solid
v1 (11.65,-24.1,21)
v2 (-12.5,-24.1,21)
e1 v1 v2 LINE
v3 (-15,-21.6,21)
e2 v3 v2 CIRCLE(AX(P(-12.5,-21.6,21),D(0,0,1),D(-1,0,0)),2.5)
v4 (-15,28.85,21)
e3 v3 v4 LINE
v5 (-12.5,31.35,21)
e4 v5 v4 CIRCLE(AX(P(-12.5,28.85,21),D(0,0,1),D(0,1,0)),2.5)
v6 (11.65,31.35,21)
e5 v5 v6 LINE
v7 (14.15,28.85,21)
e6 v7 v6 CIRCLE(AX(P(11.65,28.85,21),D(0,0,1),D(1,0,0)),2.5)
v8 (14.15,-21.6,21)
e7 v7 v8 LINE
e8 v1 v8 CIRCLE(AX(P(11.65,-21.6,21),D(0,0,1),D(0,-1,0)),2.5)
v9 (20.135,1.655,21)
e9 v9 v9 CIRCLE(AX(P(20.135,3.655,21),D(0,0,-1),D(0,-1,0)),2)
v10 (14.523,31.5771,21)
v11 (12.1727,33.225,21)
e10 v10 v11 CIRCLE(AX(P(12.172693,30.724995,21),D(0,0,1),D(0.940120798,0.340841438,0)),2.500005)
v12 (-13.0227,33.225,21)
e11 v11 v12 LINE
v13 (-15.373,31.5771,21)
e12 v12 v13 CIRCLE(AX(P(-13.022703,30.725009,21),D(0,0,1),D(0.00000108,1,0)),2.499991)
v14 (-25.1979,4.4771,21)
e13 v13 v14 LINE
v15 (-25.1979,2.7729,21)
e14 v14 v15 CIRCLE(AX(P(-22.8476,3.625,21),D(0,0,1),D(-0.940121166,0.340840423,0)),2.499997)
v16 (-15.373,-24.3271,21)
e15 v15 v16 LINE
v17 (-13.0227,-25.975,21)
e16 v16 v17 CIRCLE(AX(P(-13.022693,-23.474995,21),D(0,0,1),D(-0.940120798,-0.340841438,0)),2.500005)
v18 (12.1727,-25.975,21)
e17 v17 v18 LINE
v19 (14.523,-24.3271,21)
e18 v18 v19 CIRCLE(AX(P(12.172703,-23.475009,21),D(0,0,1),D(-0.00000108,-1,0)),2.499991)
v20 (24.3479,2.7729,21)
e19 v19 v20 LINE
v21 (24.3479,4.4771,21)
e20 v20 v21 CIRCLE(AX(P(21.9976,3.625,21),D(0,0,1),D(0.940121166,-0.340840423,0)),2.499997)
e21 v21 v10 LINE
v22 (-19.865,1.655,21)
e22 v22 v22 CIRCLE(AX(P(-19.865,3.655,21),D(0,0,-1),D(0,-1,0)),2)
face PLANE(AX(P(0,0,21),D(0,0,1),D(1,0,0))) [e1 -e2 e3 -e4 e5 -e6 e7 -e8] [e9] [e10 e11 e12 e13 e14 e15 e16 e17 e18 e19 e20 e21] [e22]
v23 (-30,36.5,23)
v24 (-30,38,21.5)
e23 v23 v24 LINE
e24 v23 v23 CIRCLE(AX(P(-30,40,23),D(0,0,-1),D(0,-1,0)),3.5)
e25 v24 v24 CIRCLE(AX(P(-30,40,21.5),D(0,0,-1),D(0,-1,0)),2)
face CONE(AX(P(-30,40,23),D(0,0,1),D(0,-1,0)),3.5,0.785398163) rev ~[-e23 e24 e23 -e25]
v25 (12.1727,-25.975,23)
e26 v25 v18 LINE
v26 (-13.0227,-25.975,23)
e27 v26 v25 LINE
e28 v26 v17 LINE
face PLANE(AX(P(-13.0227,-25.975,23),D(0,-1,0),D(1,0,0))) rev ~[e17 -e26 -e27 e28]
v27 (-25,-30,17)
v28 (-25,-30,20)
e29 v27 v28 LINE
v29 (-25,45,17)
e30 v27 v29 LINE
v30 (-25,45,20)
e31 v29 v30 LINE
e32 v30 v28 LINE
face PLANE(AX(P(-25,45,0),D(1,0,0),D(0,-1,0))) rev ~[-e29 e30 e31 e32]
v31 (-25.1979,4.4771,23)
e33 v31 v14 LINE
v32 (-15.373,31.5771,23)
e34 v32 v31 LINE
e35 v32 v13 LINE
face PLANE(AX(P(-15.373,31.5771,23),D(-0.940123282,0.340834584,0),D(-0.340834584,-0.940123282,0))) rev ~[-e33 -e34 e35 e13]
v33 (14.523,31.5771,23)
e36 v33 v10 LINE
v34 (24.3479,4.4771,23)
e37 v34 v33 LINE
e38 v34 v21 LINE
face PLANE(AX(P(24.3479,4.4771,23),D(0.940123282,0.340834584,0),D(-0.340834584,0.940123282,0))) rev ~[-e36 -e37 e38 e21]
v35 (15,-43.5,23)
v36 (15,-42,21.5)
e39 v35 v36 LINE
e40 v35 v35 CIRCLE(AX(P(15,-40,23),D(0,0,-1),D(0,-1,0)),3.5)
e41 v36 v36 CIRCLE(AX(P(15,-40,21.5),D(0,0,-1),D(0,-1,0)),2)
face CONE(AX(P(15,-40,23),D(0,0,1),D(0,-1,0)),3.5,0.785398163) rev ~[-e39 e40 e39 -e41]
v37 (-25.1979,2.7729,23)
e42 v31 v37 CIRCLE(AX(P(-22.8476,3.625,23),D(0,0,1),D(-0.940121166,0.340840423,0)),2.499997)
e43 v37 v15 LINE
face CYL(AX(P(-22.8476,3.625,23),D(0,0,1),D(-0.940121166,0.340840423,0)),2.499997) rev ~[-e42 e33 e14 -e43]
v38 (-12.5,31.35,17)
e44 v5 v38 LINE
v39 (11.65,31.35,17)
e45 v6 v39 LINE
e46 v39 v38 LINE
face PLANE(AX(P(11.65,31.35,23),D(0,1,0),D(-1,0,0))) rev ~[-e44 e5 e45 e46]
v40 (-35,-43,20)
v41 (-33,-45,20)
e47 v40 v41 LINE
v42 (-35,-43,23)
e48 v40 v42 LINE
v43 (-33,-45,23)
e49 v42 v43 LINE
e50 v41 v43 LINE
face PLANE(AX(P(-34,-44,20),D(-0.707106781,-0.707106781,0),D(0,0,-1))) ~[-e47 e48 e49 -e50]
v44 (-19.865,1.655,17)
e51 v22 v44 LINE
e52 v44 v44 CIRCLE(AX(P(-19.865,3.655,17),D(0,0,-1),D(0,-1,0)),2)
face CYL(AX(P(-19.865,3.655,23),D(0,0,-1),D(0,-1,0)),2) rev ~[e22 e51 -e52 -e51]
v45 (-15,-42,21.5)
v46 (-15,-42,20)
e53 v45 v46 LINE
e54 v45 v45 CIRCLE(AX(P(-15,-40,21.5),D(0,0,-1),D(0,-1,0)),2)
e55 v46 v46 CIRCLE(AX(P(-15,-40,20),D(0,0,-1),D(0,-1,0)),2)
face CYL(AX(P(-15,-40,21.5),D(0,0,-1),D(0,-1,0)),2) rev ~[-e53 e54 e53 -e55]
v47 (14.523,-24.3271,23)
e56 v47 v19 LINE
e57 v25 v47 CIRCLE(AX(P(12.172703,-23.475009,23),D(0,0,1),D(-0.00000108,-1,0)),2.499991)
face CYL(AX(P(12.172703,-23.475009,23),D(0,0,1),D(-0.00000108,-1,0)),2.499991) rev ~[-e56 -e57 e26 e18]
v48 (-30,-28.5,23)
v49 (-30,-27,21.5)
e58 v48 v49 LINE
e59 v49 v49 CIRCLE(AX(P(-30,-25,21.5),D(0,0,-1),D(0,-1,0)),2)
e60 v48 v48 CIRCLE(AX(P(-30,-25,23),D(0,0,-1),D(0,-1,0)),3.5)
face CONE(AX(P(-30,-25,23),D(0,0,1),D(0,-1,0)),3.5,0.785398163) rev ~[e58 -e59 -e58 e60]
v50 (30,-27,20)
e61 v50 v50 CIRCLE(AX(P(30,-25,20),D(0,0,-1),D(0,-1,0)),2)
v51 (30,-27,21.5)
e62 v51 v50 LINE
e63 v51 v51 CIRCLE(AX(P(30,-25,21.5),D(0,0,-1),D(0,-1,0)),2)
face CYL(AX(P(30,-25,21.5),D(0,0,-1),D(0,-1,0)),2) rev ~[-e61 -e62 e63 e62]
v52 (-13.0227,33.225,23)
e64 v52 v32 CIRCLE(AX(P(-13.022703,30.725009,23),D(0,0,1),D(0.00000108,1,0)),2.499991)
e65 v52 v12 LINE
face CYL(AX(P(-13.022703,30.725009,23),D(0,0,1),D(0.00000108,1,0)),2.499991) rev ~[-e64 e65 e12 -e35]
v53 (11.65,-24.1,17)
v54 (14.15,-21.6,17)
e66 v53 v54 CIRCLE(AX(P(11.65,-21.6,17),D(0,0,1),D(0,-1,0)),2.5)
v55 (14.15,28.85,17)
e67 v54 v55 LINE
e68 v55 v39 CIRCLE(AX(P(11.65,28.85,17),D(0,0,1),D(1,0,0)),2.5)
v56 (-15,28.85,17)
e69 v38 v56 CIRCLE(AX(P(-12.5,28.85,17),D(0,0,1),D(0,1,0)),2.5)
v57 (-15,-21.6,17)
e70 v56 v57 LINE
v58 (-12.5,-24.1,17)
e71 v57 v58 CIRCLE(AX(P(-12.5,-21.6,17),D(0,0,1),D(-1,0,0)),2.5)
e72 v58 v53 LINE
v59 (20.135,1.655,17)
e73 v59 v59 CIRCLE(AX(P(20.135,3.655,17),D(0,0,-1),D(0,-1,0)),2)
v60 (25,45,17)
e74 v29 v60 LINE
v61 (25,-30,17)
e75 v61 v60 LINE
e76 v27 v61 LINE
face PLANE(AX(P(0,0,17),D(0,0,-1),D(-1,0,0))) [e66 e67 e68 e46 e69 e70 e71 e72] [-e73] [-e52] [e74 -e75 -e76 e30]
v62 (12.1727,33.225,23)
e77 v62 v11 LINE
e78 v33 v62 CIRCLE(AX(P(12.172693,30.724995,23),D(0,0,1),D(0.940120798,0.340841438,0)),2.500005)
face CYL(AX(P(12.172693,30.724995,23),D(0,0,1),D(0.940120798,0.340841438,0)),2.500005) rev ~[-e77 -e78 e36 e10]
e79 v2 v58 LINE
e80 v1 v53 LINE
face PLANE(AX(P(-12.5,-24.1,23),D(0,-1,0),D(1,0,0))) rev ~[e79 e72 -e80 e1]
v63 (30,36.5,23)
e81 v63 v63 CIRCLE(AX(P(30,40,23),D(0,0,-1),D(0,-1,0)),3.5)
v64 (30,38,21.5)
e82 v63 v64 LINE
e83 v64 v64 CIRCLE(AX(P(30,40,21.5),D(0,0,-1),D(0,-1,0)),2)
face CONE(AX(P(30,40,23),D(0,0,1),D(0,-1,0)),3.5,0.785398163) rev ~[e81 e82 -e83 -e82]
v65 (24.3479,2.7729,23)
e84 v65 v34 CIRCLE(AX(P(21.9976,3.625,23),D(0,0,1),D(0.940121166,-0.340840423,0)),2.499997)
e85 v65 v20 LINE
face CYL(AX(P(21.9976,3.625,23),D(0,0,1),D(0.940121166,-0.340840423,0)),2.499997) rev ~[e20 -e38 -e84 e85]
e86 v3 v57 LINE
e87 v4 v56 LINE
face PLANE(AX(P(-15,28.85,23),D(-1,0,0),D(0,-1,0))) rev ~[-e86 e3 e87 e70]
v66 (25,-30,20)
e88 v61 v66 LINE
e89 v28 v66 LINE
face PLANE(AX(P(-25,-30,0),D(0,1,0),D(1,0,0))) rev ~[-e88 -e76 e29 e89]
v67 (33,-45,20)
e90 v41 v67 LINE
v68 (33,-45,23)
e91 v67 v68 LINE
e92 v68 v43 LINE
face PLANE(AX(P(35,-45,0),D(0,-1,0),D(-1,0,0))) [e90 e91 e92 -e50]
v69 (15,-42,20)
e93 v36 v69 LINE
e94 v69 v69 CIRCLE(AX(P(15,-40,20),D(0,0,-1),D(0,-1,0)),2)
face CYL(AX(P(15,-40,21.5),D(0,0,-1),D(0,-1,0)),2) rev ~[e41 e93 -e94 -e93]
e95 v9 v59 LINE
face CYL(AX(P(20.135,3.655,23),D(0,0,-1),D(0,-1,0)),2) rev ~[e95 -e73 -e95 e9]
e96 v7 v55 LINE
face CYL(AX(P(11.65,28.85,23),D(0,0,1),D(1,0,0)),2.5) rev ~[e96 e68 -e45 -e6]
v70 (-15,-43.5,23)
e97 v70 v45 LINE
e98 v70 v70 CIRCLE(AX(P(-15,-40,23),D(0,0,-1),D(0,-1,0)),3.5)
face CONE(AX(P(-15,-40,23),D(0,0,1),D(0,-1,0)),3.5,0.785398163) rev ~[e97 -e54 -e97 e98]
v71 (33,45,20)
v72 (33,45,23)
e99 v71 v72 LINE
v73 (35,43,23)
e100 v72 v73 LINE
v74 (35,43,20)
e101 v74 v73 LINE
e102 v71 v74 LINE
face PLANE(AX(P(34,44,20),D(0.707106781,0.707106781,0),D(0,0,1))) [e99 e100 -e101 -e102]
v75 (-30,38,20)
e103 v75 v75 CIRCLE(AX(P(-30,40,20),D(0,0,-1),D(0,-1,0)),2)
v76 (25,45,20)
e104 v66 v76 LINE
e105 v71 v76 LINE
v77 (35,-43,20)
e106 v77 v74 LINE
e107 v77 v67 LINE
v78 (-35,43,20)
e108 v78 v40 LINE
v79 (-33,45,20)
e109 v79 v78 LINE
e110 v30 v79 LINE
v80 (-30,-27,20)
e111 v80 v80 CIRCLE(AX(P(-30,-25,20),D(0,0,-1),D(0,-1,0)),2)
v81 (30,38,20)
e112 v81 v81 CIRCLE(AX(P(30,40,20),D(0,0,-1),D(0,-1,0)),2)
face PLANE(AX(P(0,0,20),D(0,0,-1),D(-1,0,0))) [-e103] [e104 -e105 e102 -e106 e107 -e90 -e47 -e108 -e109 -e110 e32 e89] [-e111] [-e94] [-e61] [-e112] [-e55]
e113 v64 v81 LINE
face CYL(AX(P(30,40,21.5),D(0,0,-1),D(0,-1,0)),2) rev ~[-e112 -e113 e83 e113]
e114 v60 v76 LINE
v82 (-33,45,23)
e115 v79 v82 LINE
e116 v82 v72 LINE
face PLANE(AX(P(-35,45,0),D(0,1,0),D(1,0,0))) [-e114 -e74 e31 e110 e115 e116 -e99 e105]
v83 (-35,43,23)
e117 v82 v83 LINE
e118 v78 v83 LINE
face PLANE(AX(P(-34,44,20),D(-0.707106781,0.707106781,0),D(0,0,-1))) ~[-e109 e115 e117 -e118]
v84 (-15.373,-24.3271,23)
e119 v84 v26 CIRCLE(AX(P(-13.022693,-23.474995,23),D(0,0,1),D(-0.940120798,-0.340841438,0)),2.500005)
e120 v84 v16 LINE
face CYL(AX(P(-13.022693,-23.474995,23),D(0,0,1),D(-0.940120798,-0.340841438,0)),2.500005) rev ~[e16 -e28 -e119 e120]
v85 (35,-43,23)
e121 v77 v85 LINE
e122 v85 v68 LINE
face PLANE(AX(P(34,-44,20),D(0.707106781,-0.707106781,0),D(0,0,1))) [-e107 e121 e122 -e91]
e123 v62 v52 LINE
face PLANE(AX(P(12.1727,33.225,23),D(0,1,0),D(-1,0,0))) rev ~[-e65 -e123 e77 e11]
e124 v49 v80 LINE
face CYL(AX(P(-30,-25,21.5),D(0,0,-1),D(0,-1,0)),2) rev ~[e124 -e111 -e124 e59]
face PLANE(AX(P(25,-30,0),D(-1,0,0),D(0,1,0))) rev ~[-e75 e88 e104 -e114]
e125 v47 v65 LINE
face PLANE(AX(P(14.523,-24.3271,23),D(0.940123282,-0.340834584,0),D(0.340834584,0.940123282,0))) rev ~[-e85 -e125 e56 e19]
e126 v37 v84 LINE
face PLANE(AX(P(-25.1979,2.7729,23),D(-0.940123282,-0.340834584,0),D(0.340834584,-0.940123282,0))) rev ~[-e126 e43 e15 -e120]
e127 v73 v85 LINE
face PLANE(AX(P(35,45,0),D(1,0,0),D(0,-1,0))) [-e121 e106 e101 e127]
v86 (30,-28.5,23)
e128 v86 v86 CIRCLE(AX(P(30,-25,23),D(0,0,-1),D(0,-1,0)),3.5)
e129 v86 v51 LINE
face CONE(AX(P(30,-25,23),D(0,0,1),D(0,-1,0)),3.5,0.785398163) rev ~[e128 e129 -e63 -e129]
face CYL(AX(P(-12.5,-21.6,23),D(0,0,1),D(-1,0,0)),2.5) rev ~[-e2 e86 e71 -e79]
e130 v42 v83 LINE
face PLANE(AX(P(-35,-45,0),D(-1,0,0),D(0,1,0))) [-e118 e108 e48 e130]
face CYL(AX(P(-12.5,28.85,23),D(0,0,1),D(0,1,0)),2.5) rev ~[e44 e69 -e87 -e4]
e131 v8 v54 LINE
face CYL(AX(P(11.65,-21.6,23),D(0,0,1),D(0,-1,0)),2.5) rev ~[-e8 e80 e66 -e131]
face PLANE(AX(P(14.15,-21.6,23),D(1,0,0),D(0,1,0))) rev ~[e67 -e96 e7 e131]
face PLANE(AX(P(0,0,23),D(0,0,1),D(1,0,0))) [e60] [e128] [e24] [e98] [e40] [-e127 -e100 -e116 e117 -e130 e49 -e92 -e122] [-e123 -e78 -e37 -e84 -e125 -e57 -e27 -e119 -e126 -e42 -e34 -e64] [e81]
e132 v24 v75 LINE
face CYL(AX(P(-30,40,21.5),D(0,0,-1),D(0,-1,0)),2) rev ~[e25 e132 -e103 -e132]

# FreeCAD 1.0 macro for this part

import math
import FreeCAD as App
import Part
import Sketcher
from FreeCAD import Vector
Q = App.Units.Quantity


def edges_at(feature, points):
    """Names of the edges that pass closest to the given points."""
    edges = feature.Shape.Edges
    near = lambda p: min(range(len(edges)), key=lambda i: edges[i].distToShape(Part.Vertex(*p))[0])
    return sorted({f"Edge{near(p) + 1}" for p in points})


def add_polygon(sketch, points):
    """Adds a closed chain of lines whose ends are joined by coincident constraints."""
    first, n = sketch.GeometryCount, len(points)
    for a, b in zip(points, points[1:] + points[:1]):
        sketch.addGeometry(Part.LineSegment(App.Vector(*a, 0), App.Vector(*b, 0)), False)
    for i in range(n):
        sketch.addConstraint(Sketcher.Constraint("Coincident", first + i, 2, first + (i + 1) % n, 1))

doc = App.newDocument("Part")
body = doc.addObject("PartDesign::Body", "Body")

# Sketch on XY plane
sketch1 = doc.addObject("Sketcher::SketchObject", "Sketch")
body.addObject(sketch1)
sketch1.AttachmentSupport = (doc.XY_Plane, [""])
sketch1.MapMode = "FlatFace"
add_polygon(sketch1, [(35, 45), (-35, 45), (-35, -45), (35, -45)])  # lines 0-3
sketch1.addConstraint([
    Sketcher.Constraint("Horizontal", 0),
    Sketcher.Constraint("Vertical", 1),
    Sketcher.Constraint("Horizontal", 2),
    Sketcher.Constraint("Vertical", 3),
    Sketcher.Constraint("Symmetric", 0, 2, 2, 2, -1, 1),
    Sketcher.Constraint("DistanceX", 0, 2, 0, 1, Q("70 mm")),
    Sketcher.Constraint("DistanceY", 1, 2, 1, 1, Q("90 mm")),
])
pad1 = doc.addObject("PartDesign::Pad", "Pad")
body.addObject(pad1)
pad1.Profile = sketch1
pad1.Length = 23

# Sketch on XY plane
sketch2 = doc.addObject("Sketcher::SketchObject", "Sketch001")
body.addObject(sketch2)
sketch2.AttachmentSupport = (doc.XY_Plane, [""])
sketch2.MapMode = "FlatFace"
sketch2.AttachmentOffset = App.Placement(Vector(0, 0, 23), App.Rotation())
sketch2.addGeometry([
    Part.ArcOfCircle(Part.Circle(Vector(11.7, 28.9, 0), Vector(0, 0, 1), 2.5), math.radians(0), math.radians(90)),  # 0
    Part.LineSegment(Vector(11.7, 31.4, 0), Vector(-12.5, 31.4, 0)),  # 1
    Part.ArcOfCircle(Part.Circle(Vector(-12.5, 28.9, 0), Vector(0, 0, 1), 2.5), math.radians(90), math.radians(180)),  # 2
    Part.LineSegment(Vector(-15, 28.9, 0), Vector(-15, -21.6, 0)),  # 3
    Part.ArcOfCircle(Part.Circle(Vector(-12.5, -21.6, 0), Vector(0, 0, 1), 2.5), math.radians(180), math.radians(270)),  # 4
    Part.LineSegment(Vector(-12.5, -24.1, 0), Vector(11.7, -24.1, 0)),  # 5
    Part.ArcOfCircle(Part.Circle(Vector(11.7, -21.6, 0), Vector(0, 0, 1), 2.5), math.radians(-90), math.radians(0)),  # 6
    Part.LineSegment(Vector(14.2, -21.6, 0), Vector(14.2, 28.9, 0)),  # 7
], False)
sketch2.addConstraint([
    Sketcher.Constraint("Tangent", 0, 2, 1, 1),
    Sketcher.Constraint("Tangent", 1, 2, 2, 1),
    Sketcher.Constraint("Tangent", 2, 2, 3, 1),
    Sketcher.Constraint("Tangent", 3, 2, 4, 1),
    Sketcher.Constraint("Tangent", 4, 2, 5, 1),
    Sketcher.Constraint("Tangent", 5, 2, 6, 1),
    Sketcher.Constraint("Tangent", 6, 2, 7, 1),
    Sketcher.Constraint("Tangent", 7, 2, 0, 1),
    Sketcher.Constraint("Horizontal", 1),
    Sketcher.Constraint("Vertical", 3),
    Sketcher.Constraint("Horizontal", 5),
    Sketcher.Constraint("Vertical", 7),
    Sketcher.Constraint("Equal", 0, 2),
    Sketcher.Constraint("Equal", 2, 4),
    Sketcher.Constraint("Equal", 4, 6),
    Sketcher.Constraint("Radius", 0, Q("2.5 mm")),
    Sketcher.Constraint("DistanceX", 2, 2, -1, 1, Q("15 mm")),
    Sketcher.Constraint("DistanceX", 1, 2, 1, 1, Q("24.15 mm")),
    Sketcher.Constraint("DistanceY", 3, 2, 3, 1, Q("50.45 mm")),
    Sketcher.Constraint("DistanceY", 4, 3, -1, 1, Q("21.6 mm")),
])
pocket1 = doc.addObject("PartDesign::Pocket", "Pocket")
body.addObject(pocket1)
pocket1.Profile = sketch2
pocket1.Type = "ThroughAll"

# Sketch on XY plane
sketch3 = doc.addObject("Sketcher::SketchObject", "Sketch002")
body.addObject(sketch3)
sketch3.AttachmentSupport = (doc.XY_Plane, [""])
sketch3.MapMode = "FlatFace"
sketch3.AttachmentOffset = App.Placement(Vector(0, 0, 23), App.Rotation())
sketch3.addGeometry([
    Part.ArcOfCircle(Part.Circle(Vector(12.2, 30.7, 0), Vector(0, 0, 1), 2.5), math.radians(20), math.radians(90)),  # 0
    Part.LineSegment(Vector(12.2, 33.2, 0), Vector(-13, 33.2, 0)),  # 1
    Part.ArcOfCircle(Part.Circle(Vector(-13, 30.7, 0), Vector(0, 0, 1), 2.5), math.radians(90), math.radians(160)),  # 2
    Part.LineSegment(Vector(-15.4, 31.6, 0), Vector(-25.2, 4.5, 0)),  # 3
    Part.ArcOfCircle(Part.Circle(Vector(-22.8, 3.6, 0), Vector(0, 0, 1), 2.5), math.radians(160), math.radians(200)),  # 4
    Part.LineSegment(Vector(-25.2, 2.8, 0), Vector(-15.4, -24.3, 0)),  # 5
    Part.ArcOfCircle(Part.Circle(Vector(-13, -23.5, 0), Vector(0, 0, 1), 2.5), math.radians(-160), math.radians(-90)),  # 6
    Part.LineSegment(Vector(-13, -26, 0), Vector(12.2, -26, 0)),  # 7
    Part.ArcOfCircle(Part.Circle(Vector(12.2, -23.5, 0), Vector(0, 0, 1), 2.5), math.radians(-90), math.radians(-20)),  # 8
    Part.LineSegment(Vector(14.5, -24.3, 0), Vector(24.3, 2.8, 0)),  # 9
    Part.ArcOfCircle(Part.Circle(Vector(22, 3.6, 0), Vector(0, 0, 1), 2.5), math.radians(-20), math.radians(20)),  # 10
    Part.LineSegment(Vector(24.3, 4.5, 0), Vector(14.5, 31.6, 0)),  # 11
], False)
sketch3.addConstraint([
    Sketcher.Constraint("Tangent", 0, 2, 1, 1),
    Sketcher.Constraint("Tangent", 1, 2, 2, 1),
    Sketcher.Constraint("Tangent", 2, 2, 3, 1),
    Sketcher.Constraint("Tangent", 3, 2, 4, 1),
    Sketcher.Constraint("Tangent", 4, 2, 5, 1),
    Sketcher.Constraint("Tangent", 5, 2, 6, 1),
    Sketcher.Constraint("Tangent", 6, 2, 7, 1),
    Sketcher.Constraint("Tangent", 7, 2, 8, 1),
    Sketcher.Constraint("Tangent", 8, 2, 9, 1),
    Sketcher.Constraint("Tangent", 9, 2, 10, 1),
    Sketcher.Constraint("Tangent", 10, 2, 11, 1),
    Sketcher.Constraint("Tangent", 11, 2, 0, 1),
    Sketcher.Constraint("Horizontal", 1),
    Sketcher.Constraint("Horizontal", 7),
    Sketcher.Constraint("Equal", 0, 2),
    Sketcher.Constraint("Equal", 2, 4),
    Sketcher.Constraint("Equal", 4, 6),
    Sketcher.Constraint("Equal", 6, 8),
    Sketcher.Constraint("Equal", 8, 10),
    Sketcher.Constraint("Parallel", 3, 9),
    Sketcher.Constraint("Parallel", 5, 11),
    Sketcher.Constraint("Horizontal", 4, 3, 10, 3),
    Sketcher.Constraint("Horizontal", 5, 2, 8, 2),
    Sketcher.Constraint("Vertical", 2, 3, 6, 3),
    Sketcher.Constraint("Radius", 0, Q("2.5 mm")),
    Sketcher.Constraint("DistanceY", 4, 3, 2, 3, Q("27.1 mm")),
    Sketcher.Constraint("Distance", 3, Q("28.826 mm")),
    Sketcher.Constraint("DistanceX", 1, 2, 1, 1, Q("25.1954 mm")),
    Sketcher.Constraint("DistanceY", -1, 1, 0, 3, Q("30.725 mm")),
    Sketcher.Constraint("DistanceX", 2, 2, -1, 1, Q("15.373 mm")),
])
pocket2 = doc.addObject("PartDesign::Pocket", "Pocket001")
body.addObject(pocket2)
pocket2.Profile = sketch3
pocket2.Length = 2

# Sketch on XY plane
sketch4 = doc.addObject("Sketcher::SketchObject", "Sketch003")
body.addObject(sketch4)
sketch4.AttachmentSupport = (doc.XY_Plane, [""])
sketch4.MapMode = "FlatFace"
add_polygon(sketch4, [(25, -30), (25, 45), (35, 45), (35, -45), (-35, -45), (-35, 45), (-25, 45), (-25, -30)])  # lines 0-7
sketch4.addConstraint([
    Sketcher.Constraint("Vertical", 0),
    Sketcher.Constraint("Horizontal", 1),
    Sketcher.Constraint("Vertical", 2),
    Sketcher.Constraint("Horizontal", 3),
    Sketcher.Constraint("Vertical", 4),
    Sketcher.Constraint("Horizontal", 5),
    Sketcher.Constraint("Vertical", 6),
    Sketcher.Constraint("Horizontal", 7),
    Sketcher.Constraint("Symmetric", 1, 2, 3, 2, -1, 1),
    Sketcher.Constraint("Symmetric", 0, 2, 5, 2, -2),
    Sketcher.Constraint("DistanceX", 1, 1, 1, 2, Q("10 mm")),
    Sketcher.Constraint("DistanceY", 3, 2, 6, 2, Q("15 mm")),
    Sketcher.Constraint("DistanceX", 3, 2, 3, 1, Q("70 mm")),
    Sketcher.Constraint("DistanceY", 0, 1, 0, 2, Q("75 mm")),
])
pocket3 = doc.addObject("PartDesign::Pocket", "Pocket002")
body.addObject(pocket3)
pocket3.Profile = sketch4
pocket3.Length = 20
pocket3.Reversed = True

# Sketch on XY plane
sketch5 = doc.addObject("Sketcher::SketchObject", "Sketch004")
body.addObject(sketch5)
sketch5.AttachmentSupport = (doc.XY_Plane, [""])
sketch5.MapMode = "FlatFace"
sketch5.AttachmentOffset = App.Placement(Vector(0, 0, 23), App.Rotation())
sketch5.addGeometry([
    Part.Circle(Vector(20.1, 3.7, 0), Vector(0, 0, 1), 2),
    Part.Circle(Vector(-19.9, 3.7, 0), Vector(0, 0, 1), 2),
], False)
sketch5.addConstraint([
    Sketcher.Constraint("Equal", 0, 1),
    Sketcher.Constraint("Horizontal", 0, 3, 1, 3),
    Sketcher.Constraint("Diameter", 0, Q("4 mm")),
    Sketcher.Constraint("DistanceX", 1, 3, 0, 3, Q("40 mm")),
    Sketcher.Constraint("DistanceX", -1, 1, 0, 3, Q("20.135 mm")),
    Sketcher.Constraint("DistanceY", -1, 1, 0, 3, Q("3.655 mm")),
])
doc.recompute()
hole = doc.addObject("PartDesign::Hole", "Hole")
body.addObject(hole)
hole.Profile = sketch5
hole.ThreadType = "None"
hole.Diameter = 4
hole.DepthType = "ThroughAll"

# Sketch on XY plane
sketch6 = doc.addObject("Sketcher::SketchObject", "Sketch005")
body.addObject(sketch6)
sketch6.AttachmentSupport = (doc.XY_Plane, [""])
sketch6.MapMode = "FlatFace"
add_polygon(sketch6, [(-35, 45), (25, 45), (25, -30), (-35, -30)])  # lines 0-3
sketch6.addConstraint([
    Sketcher.Constraint("Horizontal", 0),
    Sketcher.Constraint("Vertical", 1),
    Sketcher.Constraint("Horizontal", 2),
    Sketcher.Constraint("Vertical", 3),
    Sketcher.Constraint("DistanceY", 1, 2, -1, 1, Q("30 mm")),
    Sketcher.Constraint("DistanceX", 0, 1, 0, 2, Q("60 mm")),
    Sketcher.Constraint("DistanceY", 1, 2, 1, 1, Q("75 mm")),
    Sketcher.Constraint("DistanceX", -1, 1, 0, 2, Q("25 mm")),
])
pocket4 = doc.addObject("PartDesign::Pocket", "Pocket003")
body.addObject(pocket4)
pocket4.Profile = sketch6
pocket4.Length = 17
pocket4.Reversed = True

# Sketch on XY plane
sketch7 = doc.addObject("Sketcher::SketchObject", "Sketch006")
body.addObject(sketch7)
sketch7.AttachmentSupport = (doc.XY_Plane, [""])
sketch7.MapMode = "FlatFace"
sketch7.AttachmentOffset = App.Placement(Vector(0, 0, 23), App.Rotation())
sketch7.addGeometry([
    Part.Circle(Vector(-15, -40, 0), Vector(0, 0, 1), 2),  # 0
    Part.Circle(Vector(15, -40, 0), Vector(0, 0, 1), 2),  # 1
    Part.Circle(Vector(30, -25, 0), Vector(0, 0, 1), 2),  # 2
    Part.Circle(Vector(30, 40, 0), Vector(0, 0, 1), 2),  # 3
    Part.Circle(Vector(-30, 40, 0), Vector(0, 0, 1), 2),  # 4
    Part.Circle(Vector(-30, -25, 0), Vector(0, 0, 1), 2),  # 5
], False)
sketch7.addConstraint([
    Sketcher.Constraint("Equal", 0, 1),
    Sketcher.Constraint("Equal", 1, 2),
    Sketcher.Constraint("Equal", 2, 3),
    Sketcher.Constraint("Equal", 3, 4),
    Sketcher.Constraint("Equal", 4, 5),
    Sketcher.Constraint("Symmetric", 0, 3, 1, 3, -2),
    Sketcher.Constraint("Symmetric", 3, 3, 4, 3, -2),
    Sketcher.Constraint("Symmetric", 2, 3, 5, 3, -2),
    Sketcher.Constraint("Vertical", 2, 3, 3, 3),
    Sketcher.Constraint("Diameter", 0, Q("4 mm")),
    Sketcher.Constraint("DistanceX", 0, 3, -1, 1, Q("15 mm")),
    Sketcher.Constraint("DistanceY", 0, 3, -1, 1, Q("40 mm")),
    Sketcher.Constraint("DistanceX", -1, 1, 2, 3, Q("30 mm")),
    Sketcher.Constraint("DistanceY", 2, 3, -1, 1, Q("25 mm")),
    Sketcher.Constraint("DistanceY", -1, 1, 3, 3, Q("40 mm")),
])
doc.recompute()
hole2 = doc.addObject("PartDesign::Hole", "Hole001")
body.addObject(hole2)
hole2.Profile = sketch7
hole2.ThreadType = "None"
hole2.Diameter = 4
hole2.DepthType = "ThroughAll"
hole2.HoleCutType = "Countersink"
hole2.HoleCutDiameter = 7
hole2.HoleCutCountersinkAngle = 90
doc.recompute()

chamfer = doc.addObject("PartDesign::Chamfer", "Chamfer")
body.addObject(chamfer)
chamfer.Base = (hole2, edges_at(hole2, [
    (-35, 45, 21.5),
    (35, 45, 21.5),
    (35, -45, 21.5),
    (-35, -45, 21.5),
]))
chamfer.Size = 2

doc.recompute()
